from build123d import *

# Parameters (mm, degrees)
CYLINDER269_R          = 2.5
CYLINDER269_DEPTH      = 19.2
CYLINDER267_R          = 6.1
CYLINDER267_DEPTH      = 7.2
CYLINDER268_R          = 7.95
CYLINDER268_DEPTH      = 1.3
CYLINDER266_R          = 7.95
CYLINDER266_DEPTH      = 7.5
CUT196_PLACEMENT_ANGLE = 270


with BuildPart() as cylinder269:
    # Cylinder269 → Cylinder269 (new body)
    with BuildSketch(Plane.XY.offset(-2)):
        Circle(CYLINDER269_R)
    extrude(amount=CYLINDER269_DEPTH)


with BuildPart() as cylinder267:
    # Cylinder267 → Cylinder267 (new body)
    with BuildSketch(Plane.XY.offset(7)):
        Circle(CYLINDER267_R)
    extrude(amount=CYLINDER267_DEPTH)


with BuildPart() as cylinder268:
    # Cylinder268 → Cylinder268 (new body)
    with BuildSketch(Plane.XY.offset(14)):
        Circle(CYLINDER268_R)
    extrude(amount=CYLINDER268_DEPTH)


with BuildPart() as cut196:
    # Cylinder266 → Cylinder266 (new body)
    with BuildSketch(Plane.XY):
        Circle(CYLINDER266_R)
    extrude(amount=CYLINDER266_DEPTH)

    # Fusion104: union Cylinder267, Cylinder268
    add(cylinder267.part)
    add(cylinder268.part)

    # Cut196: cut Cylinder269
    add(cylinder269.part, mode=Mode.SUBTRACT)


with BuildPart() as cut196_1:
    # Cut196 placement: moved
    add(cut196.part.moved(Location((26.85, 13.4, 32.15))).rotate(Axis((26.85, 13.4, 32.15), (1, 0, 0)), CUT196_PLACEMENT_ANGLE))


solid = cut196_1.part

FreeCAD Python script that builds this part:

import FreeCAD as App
import Part
import Sketcher

V = App.Vector
Q = App.Units.Quantity

doc = App.newDocument("Part")
body = doc.addObject("PartDesign::Body", "Body")

# Sketch on XY plane
sketch1 = body.newObject("Sketcher::SketchObject", "Sketch")
sketch1.AttachmentSupport = (doc.getObject("XY_Plane"), [""])
sketch1.MapMode = "FlatFace"
sketch1.AttachmentOffset = App.Placement(V(0, 0, -2), App.Rotation())
sketch1.addGeometry(Part.Circle(V(0, 0, 0), V(0, 0, 1), 2.5), False)
sketch1.addConstraint([
    Sketcher.Constraint("Coincident", 0, 3, -1, 1),
    Sketcher.Constraint("Diameter", 0, Q("5 mm")),
])
pad1 = body.newObject("PartDesign::Pad", "Pad")
pad1.Profile = sketch1
pad1.Length = 19.2
body2 = doc.addObject("PartDesign::Body", "Body001")

# Sketch on XY plane
sketch2 = body2.newObject("Sketcher::SketchObject", "Sketch001")
sketch2.AttachmentSupport = (doc.getObject("XY_Plane001"), [""])
sketch2.MapMode = "FlatFace"
sketch2.AttachmentOffset = App.Placement(V(0, 0, 7), App.Rotation())
sketch2.addGeometry(Part.Circle(V(0, 0, 0), V(0, 0, 1), 6), False)
sketch2.addConstraint([
    Sketcher.Constraint("Coincident", 0, 3, -1, 1),
    Sketcher.Constraint("Diameter", 0, Q("12.2 mm")),
])
pad2 = body2.newObject("PartDesign::Pad", "Pad001")
pad2.Profile = sketch2
pad2.Length = 7.2
body3 = doc.addObject("PartDesign::Body", "Body002")

# Sketch on XY plane
sketch3 = body3.newObject("Sketcher::SketchObject", "Sketch002")
sketch3.AttachmentSupport = (doc.getObject("XY_Plane002"), [""])
sketch3.MapMode = "FlatFace"
sketch3.AttachmentOffset = App.Placement(V(0, 0, 14), App.Rotation())
sketch3.addGeometry(Part.Circle(V(0, 0, 0), V(0, 0, 1), 8), False)
sketch3.addConstraint([
    Sketcher.Constraint("Coincident", 0, 3, -1, 1),
    Sketcher.Constraint("Diameter", 0, Q("15.9 mm")),
])
pad3 = body3.newObject("PartDesign::Pad", "Pad002")
pad3.Profile = sketch3
pad3.Length = 1.3
body4 = doc.addObject("PartDesign::Body", "Body003")

# Sketch on XY plane
sketch4 = body4.newObject("Sketcher::SketchObject", "Sketch003")
sketch4.AttachmentSupport = (doc.getObject("XY_Plane003"), [""])
sketch4.MapMode = "FlatFace"
sketch4.addGeometry(Part.Circle(V(0, 0, 0), V(0, 0, 1), 8), False)
sketch4.addConstraint([
    Sketcher.Constraint("Coincident", 0, 3, -1, 1),
    Sketcher.Constraint("Diameter", 0, Q("15.9 mm")),
])
pad4 = body4.newObject("PartDesign::Pad", "Pad003")
pad4.Profile = sketch4
pad4.Length = 7.5
doc.recompute()

boolean = body4.newObject("PartDesign::Boolean", "Boolean")
boolean.Type = "Fuse"
boolean.addObjects([body2])
doc.recompute()

boolean2 = body4.newObject("PartDesign::Boolean", "Boolean001")
boolean2.Type = "Fuse"
boolean2.addObjects([body3])
doc.recompute()

boolean3 = body4.newObject("PartDesign::Boolean", "Boolean002")
boolean3.Type = "Cut"
boolean3.addObjects([body])
body5 = doc.addObject("PartDesign::Body", "Body004")
doc.recompute()

body4.Placement = App.Placement(V(26.85, 13.4, 32.15), App.Rotation(V(1, 0, 0), 270))
boolean4 = body5.newObject("PartDesign::Boolean", "Boolean003")
boolean4.Type = "Fuse"
boolean4.addObjects([body4])

doc.recompute()
